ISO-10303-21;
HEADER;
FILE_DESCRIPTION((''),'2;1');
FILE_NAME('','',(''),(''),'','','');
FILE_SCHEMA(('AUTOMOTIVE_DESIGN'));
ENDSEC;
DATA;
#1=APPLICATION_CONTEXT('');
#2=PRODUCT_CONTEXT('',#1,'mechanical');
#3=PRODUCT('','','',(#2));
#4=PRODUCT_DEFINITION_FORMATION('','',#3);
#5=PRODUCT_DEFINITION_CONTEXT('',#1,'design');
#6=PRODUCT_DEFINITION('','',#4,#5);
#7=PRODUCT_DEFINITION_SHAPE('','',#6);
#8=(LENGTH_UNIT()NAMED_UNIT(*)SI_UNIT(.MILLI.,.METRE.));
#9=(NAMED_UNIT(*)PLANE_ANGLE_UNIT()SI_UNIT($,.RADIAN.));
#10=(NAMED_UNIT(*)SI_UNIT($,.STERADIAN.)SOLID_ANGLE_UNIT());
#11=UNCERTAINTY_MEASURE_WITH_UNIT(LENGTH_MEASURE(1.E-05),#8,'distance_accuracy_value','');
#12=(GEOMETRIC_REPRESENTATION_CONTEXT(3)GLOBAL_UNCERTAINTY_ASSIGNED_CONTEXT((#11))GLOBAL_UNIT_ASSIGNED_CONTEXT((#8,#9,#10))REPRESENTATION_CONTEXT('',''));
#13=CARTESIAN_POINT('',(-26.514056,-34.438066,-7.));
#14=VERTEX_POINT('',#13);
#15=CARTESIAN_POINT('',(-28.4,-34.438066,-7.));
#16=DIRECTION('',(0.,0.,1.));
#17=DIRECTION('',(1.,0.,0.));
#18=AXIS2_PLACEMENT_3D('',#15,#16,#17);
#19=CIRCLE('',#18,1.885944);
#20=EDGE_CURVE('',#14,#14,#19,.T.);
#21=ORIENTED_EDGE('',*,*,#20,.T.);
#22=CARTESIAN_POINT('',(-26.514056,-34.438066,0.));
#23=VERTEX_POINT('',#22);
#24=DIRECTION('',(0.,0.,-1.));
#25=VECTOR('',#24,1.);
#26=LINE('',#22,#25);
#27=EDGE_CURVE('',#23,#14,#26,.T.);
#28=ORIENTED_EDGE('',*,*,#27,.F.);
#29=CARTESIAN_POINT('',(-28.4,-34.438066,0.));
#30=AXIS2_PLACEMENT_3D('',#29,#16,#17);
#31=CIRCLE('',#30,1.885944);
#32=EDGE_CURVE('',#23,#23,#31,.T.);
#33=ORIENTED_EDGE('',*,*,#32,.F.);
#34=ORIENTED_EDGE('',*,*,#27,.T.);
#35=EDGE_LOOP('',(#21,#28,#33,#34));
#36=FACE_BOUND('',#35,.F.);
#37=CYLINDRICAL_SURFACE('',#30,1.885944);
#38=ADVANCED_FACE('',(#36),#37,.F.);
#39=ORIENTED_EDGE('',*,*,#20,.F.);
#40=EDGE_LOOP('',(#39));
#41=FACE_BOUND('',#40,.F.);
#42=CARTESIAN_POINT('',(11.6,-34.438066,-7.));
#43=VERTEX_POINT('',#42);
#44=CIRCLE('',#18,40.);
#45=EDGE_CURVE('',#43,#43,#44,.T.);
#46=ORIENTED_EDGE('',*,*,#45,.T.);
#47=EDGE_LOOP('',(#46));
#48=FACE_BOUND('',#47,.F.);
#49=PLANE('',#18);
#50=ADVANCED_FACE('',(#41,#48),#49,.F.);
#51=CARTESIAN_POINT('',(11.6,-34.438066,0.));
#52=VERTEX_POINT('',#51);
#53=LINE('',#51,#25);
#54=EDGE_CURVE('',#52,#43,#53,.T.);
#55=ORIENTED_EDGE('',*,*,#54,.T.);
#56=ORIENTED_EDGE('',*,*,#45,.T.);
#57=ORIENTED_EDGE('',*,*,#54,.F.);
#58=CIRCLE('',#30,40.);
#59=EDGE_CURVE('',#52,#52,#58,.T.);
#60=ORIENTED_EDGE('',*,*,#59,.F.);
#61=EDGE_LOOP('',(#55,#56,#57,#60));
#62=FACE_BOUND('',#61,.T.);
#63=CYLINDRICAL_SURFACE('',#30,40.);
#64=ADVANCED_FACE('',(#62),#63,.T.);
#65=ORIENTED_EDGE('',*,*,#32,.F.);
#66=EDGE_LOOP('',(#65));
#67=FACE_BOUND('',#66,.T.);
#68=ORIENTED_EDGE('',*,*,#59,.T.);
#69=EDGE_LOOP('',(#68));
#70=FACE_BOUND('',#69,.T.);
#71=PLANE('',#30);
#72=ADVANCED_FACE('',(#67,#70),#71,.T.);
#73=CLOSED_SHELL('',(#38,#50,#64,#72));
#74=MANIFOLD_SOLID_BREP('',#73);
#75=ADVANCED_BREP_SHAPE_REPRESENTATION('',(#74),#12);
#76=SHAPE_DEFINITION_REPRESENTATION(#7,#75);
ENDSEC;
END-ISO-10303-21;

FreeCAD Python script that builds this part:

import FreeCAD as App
import Part
import Sketcher
from FreeCAD import Vector

doc = App.newDocument("Part")
body = doc.addObject("PartDesign::Body", "Body")

# Sketch on XY plane
sketch1 = body.newObject("Sketcher::SketchObject", "Sketch")
sketch1.AttachmentSupport = (doc.getObject("XY_Plane"), [""])
sketch1.MapMode = "FlatFace"
sketch1.addGeometry([
    Part.Circle(Vector(-28.4, -34.438066, 0), Vector(0, 0, 1), 40),
    Part.Circle(Vector(-28.4, -34.438066, 0), Vector(0, 0, 1), 1.885944),
], False)
sketch1.addConstraint([
    Sketcher.Constraint("Coincident", 1, 3, 0, 3),
    Sketcher.Constraint("Diameter", 0, 80.0),
    Sketcher.Constraint("DistanceX", 0, 3, -1, 1, 28.4),
    Sketcher.Constraint("Diameter", 1, 3.771888),
    Sketcher.Constraint("DistanceY", 0, 3, -1, 1, 34.438066),
])
pad1 = body.newObject("PartDesign::Pad", "Pad")
pad1.Profile = sketch1
pad1.Length = 7
pad1.Reversed = True

doc.recompute()
